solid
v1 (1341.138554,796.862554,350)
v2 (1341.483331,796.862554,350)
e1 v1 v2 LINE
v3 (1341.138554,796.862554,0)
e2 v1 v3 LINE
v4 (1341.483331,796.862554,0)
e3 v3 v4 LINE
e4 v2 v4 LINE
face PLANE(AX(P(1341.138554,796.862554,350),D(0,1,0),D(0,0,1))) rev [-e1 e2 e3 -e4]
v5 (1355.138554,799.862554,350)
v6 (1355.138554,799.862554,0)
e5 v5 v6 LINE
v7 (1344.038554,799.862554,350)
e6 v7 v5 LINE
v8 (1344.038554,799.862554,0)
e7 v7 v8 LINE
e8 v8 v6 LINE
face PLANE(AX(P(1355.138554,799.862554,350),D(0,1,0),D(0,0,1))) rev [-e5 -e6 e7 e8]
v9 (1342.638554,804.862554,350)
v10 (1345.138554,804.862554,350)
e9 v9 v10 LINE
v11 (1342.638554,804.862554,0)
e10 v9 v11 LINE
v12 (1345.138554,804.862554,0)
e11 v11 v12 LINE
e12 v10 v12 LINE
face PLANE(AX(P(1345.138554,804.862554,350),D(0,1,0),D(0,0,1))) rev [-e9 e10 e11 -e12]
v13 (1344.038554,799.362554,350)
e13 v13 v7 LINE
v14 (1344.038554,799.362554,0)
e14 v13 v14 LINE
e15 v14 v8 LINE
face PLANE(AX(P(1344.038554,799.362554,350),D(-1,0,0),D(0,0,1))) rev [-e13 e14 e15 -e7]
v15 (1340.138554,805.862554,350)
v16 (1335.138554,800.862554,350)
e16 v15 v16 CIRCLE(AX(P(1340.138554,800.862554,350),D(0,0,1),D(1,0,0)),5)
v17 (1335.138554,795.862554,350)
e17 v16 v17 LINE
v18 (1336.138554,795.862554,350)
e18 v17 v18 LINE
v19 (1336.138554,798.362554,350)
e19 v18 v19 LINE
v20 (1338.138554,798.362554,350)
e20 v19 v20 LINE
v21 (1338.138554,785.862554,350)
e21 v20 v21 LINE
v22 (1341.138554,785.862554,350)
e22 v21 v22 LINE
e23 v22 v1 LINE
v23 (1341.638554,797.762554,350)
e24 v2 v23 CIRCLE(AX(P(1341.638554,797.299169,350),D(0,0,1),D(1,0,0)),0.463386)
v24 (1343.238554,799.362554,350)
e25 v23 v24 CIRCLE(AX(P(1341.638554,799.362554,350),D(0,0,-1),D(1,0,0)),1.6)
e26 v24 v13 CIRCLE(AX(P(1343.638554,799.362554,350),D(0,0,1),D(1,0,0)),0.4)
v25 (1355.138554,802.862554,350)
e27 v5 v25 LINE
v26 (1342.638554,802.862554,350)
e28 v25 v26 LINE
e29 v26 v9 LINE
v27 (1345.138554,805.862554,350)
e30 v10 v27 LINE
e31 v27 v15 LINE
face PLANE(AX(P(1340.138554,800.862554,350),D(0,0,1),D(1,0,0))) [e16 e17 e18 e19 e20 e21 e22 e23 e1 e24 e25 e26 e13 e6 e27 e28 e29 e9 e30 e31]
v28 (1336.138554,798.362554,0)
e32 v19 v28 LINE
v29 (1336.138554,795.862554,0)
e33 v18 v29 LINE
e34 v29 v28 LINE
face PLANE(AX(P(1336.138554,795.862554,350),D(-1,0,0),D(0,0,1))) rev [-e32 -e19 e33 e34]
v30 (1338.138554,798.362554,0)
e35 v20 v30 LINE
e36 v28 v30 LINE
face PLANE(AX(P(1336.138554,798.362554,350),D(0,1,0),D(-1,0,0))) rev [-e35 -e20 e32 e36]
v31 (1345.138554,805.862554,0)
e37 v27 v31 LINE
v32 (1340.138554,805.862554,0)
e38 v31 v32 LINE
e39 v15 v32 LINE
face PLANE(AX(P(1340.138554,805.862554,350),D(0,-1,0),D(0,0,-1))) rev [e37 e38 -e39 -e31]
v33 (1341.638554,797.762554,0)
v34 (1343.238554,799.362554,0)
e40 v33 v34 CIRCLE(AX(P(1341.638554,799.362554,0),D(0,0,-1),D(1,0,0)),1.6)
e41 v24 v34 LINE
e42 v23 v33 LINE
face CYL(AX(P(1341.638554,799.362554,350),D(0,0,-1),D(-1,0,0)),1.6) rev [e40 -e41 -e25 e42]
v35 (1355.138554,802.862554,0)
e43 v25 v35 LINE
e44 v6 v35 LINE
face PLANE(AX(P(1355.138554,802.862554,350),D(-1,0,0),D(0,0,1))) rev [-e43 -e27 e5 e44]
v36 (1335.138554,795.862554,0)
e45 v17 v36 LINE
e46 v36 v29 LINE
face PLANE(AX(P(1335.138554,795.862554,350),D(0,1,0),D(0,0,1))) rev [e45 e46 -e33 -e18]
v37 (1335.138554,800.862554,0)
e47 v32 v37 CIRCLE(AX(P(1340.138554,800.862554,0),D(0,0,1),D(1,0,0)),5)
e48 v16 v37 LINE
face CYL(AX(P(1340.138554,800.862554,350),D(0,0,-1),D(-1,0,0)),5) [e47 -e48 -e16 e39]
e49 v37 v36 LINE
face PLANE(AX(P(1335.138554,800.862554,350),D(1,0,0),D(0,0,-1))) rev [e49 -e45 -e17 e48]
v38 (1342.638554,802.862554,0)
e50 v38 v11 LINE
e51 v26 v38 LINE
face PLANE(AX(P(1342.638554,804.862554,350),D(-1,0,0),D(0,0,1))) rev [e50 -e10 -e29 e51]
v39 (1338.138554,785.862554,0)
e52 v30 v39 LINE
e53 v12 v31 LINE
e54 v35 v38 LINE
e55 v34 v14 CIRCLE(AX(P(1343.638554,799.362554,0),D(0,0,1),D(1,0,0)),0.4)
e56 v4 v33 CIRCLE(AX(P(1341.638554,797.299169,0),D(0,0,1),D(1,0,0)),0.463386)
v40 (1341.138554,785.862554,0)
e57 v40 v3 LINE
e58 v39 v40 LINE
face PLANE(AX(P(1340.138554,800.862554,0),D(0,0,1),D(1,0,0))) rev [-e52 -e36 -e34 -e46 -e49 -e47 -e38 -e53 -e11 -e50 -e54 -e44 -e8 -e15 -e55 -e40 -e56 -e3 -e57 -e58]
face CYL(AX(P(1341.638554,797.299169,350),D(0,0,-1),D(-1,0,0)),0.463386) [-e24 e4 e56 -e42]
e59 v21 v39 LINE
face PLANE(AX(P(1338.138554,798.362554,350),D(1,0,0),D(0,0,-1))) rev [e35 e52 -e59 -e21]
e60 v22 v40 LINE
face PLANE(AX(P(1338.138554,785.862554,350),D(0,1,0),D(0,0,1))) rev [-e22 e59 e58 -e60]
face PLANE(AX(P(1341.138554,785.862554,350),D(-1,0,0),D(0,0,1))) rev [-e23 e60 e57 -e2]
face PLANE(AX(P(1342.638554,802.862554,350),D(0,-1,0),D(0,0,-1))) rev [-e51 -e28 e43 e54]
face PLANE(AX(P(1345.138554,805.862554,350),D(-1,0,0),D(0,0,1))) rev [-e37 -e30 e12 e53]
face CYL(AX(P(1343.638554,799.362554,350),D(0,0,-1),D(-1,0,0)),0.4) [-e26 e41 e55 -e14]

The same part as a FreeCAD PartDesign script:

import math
import FreeCAD as App
import Part
import Sketcher

V = App.Vector

doc = App.newDocument("Part")
params = doc.addObject("Spreadsheet::Sheet", "Params")
for row, (alias, value) in enumerate([
    ("sketch1_radius", "5 mm"),
    ("sketch1_radius2", "1.6 mm"),
    ("sketch1_radius3", "0.4 mm"),
    ("sketch1_width", "5 mm"),
    ("sketch1_width2", "1 mm"),
    ("pad1_length", "350 mm"),
], start=1):
    params.set(f"A{row}", alias)
    params.set(f"B{row}", "=" + value)
    params.setAlias(f"B{row}", alias)

body = doc.addObject("PartDesign::Body", "Body")

sketch1 = body.newObject("Sketcher::SketchObject", "Sketch")
sketch1.AttachmentSupport = (doc.getObject("XY_Plane"), [""])
sketch1.MapMode = "FlatFace"
sketch1.addGeometry(Part.LineSegment(V(1345.14, 805.86, 0), V(1340.14, 805.86, 0)), False)
sketch1.addGeometry(Part.ArcOfCircle(Part.Circle(V(1340.14, 800.86, 0), V(0, 0, 1), 5), math.radians(90), math.radians(180)), False)
sketch1.addGeometry(Part.LineSegment(V(1335.14, 800.86, 0), V(1335.14, 795.86, 0)), False)
sketch1.addGeometry(Part.LineSegment(V(1335.14, 795.86, 0), V(1336.14, 795.86, 0)), False)
sketch1.addGeometry(Part.LineSegment(V(1336.14, 795.86, 0), V(1336.14, 798.36, 0)), False)
sketch1.addGeometry(Part.LineSegment(V(1336.14, 798.36, 0), V(1338.14, 798.36, 0)), False)
sketch1.addGeometry(Part.LineSegment(V(1338.14, 798.36, 0), V(1338.14, 785.86, 0)), False)
sketch1.addGeometry(Part.LineSegment(V(1338.14, 785.86, 0), V(1341.14, 785.86, 0)), False)
sketch1.addGeometry(Part.LineSegment(V(1341.14, 785.86, 0), V(1341.14, 796.86, 0)), False)
sketch1.addGeometry(Part.LineSegment(V(1341.14, 796.86, 0), V(1341.48, 796.86, 0)), False)
sketch1.addGeometry(Part.ArcOfCircle(Part.Circle(V(1341.64, 797.3, 0), V(0, 0, 1), 0.46), math.radians(-110), math.radians(90)), False)
sketch1.addGeometry(Part.ArcOfCircle(Part.Circle(V(1341.64, 799.36, 0), V(0, 0, 1), 1.6), math.radians(0), math.radians(270)), False)
sketch1.addGeometry(Part.ArcOfCircle(Part.Circle(V(1343.64, 799.36, 0), V(0, 0, 1), 0.4), math.radians(180), math.radians(360)), False)
sketch1.addGeometry(Part.LineSegment(V(1344.04, 799.36, 0), V(1344.04, 799.86, 0)), False)
sketch1.addGeometry(Part.LineSegment(V(1344.04, 799.86, 0), V(1355.14, 799.86, 0)), False)
sketch1.addGeometry(Part.LineSegment(V(1355.14, 799.86, 0), V(1355.14, 802.86, 0)), False)
sketch1.addGeometry(Part.LineSegment(V(1355.14, 802.86, 0), V(1342.64, 802.86, 0)), False)
sketch1.addGeometry(Part.LineSegment(V(1342.64, 802.86, 0), V(1342.64, 804.86, 0)), False)
sketch1.addGeometry(Part.LineSegment(V(1342.64, 804.86, 0), V(1345.14, 804.86, 0)), False)
sketch1.addGeometry(Part.LineSegment(V(1345.14, 804.86, 0), V(1345.14, 805.86, 0)), False)
sketch1.addConstraint(Sketcher.Constraint("Tangent", 0, 2, 1, 1))
sketch1.addConstraint(Sketcher.Constraint("Tangent", 1, 2, 2, 1))
sketch1.addConstraint(Sketcher.Constraint("Coincident", 2, 2, 3, 1))
sketch1.addConstraint(Sketcher.Constraint("Coincident", 3, 2, 4, 1))
sketch1.addConstraint(Sketcher.Constraint("Coincident", 4, 2, 5, 1))
sketch1.addConstraint(Sketcher.Constraint("Coincident", 5, 2, 6, 1))
sketch1.addConstraint(Sketcher.Constraint("Coincident", 6, 2, 7, 1))
sketch1.addConstraint(Sketcher.Constraint("Coincident", 7, 2, 8, 1))
sketch1.addConstraint(Sketcher.Constraint("Coincident", 8, 2, 9, 1))
sketch1.addConstraint(Sketcher.Constraint("Coincident", 9, 2, 10, 1))
sketch1.addConstraint(Sketcher.Constraint("Tangent", 10, 2, 11, 2))
sketch1.addConstraint(Sketcher.Constraint("Tangent", 11, 1, 12, 1))
sketch1.addConstraint(Sketcher.Constraint("Tangent", 12, 2, 13, 1))
sketch1.addConstraint(Sketcher.Constraint("Coincident", 13, 2, 14, 1))
sketch1.addConstraint(Sketcher.Constraint("Coincident", 14, 2, 15, 1))
sketch1.addConstraint(Sketcher.Constraint("Coincident", 15, 2, 16, 1))
sketch1.addConstraint(Sketcher.Constraint("Coincident", 16, 2, 17, 1))
sketch1.addConstraint(Sketcher.Constraint("Coincident", 17, 2, 18, 1))
sketch1.addConstraint(Sketcher.Constraint("Coincident", 18, 2, 19, 1))
sketch1.addConstraint(Sketcher.Constraint("Coincident", 19, 2, 0, 1))
sketch1.addConstraint(Sketcher.Constraint("Horizontal", 0))
sketch1.addConstraint(Sketcher.Constraint("Vertical", 2))
sketch1.addConstraint(Sketcher.Constraint("Horizontal", 3))
sketch1.addConstraint(Sketcher.Constraint("Vertical", 4))
sketch1.addConstraint(Sketcher.Constraint("Horizontal", 5))
sketch1.addConstraint(Sketcher.Constraint("Vertical", 6))
sketch1.addConstraint(Sketcher.Constraint("Horizontal", 7))
sketch1.addConstraint(Sketcher.Constraint("Vertical", 8))
sketch1.addConstraint(Sketcher.Constraint("Horizontal", 9))
sketch1.addConstraint(Sketcher.Constraint("Vertical", 13))
sketch1.addConstraint(Sketcher.Constraint("Horizontal", 14))
sketch1.addConstraint(Sketcher.Constraint("Vertical", 15))
sketch1.addConstraint(Sketcher.Constraint("Horizontal", 16))
sketch1.addConstraint(Sketcher.Constraint("Vertical", 17))
sketch1.addConstraint(Sketcher.Constraint("Horizontal", 18))
sketch1.addConstraint(Sketcher.Constraint("Vertical", 19))
sketch1.addConstraint(Sketcher.Constraint("Horizontal", 11, 3, 12, 3))
sketch1.addConstraint(Sketcher.Constraint("Vertical", 10, 3, 11, 3))
sketch1.addConstraint(Sketcher.Constraint("Equal", 0, 2))
sketch1.addConstraint(Sketcher.Constraint("Equal", 18, 4))
sketch1.addConstraint(Sketcher.Constraint("Equal", 16, 6))
sketch1.addConstraint(Sketcher.Constraint("Equal", 7, 15))
sketch1.addConstraint(Sketcher.Constraint("Equal", 5, 17))
sketch1.addConstraint(Sketcher.Constraint("Equal", 3, 19))
sketch1.addConstraint(Sketcher.Constraint("Radius", 1, 5.0))
sketch1.addConstraint(Sketcher.Constraint("Radius", 11, 1.6))
sketch1.addConstraint(Sketcher.Constraint("Radius", 12, 0.4))
sketch1.addConstraint(Sketcher.Constraint("DistanceX", 0, 2, 0, 1, 5.0))
sketch1.addConstraint(Sketcher.Constraint("DistanceX", 3, 1, 3, 2, 1.0))
sketch1.addConstraint(Sketcher.Constraint("DistanceX", 5, 1, 5, 2, 2.0))
sketch1.addConstraint(Sketcher.Constraint("DistanceX", 7, 1, 7, 2, 3.0))
sketch1.addConstraint(Sketcher.Constraint("DistanceY", 8, 1, 8, 2, 11.0))
sketch1.addConstraint(Sketcher.Constraint("DistanceX", 14, 1, 14, 2, 11.1))
sketch1.addConstraint(Sketcher.Constraint("DistanceX", 16, 2, 16, 1, 12.5))
sketch1.addConstraint(Sketcher.Constraint("DistanceX", 18, 1, 18, 2, 2.5))
sketch1.addConstraint(Sketcher.Constraint("DistanceY", 13, 1, 13, 2, 0.5))
sketch1.addConstraint(Sketcher.Constraint("Radius", 10, 0.463386))
sketch1.addConstraint(Sketcher.Constraint("DistanceY", -1, 1, 10, 3, 797.299169))
sketch1.addConstraint(Sketcher.Constraint("DistanceX", -1, 1, 9, 2, 1341.483331))
sketch1.setExpression("Constraints[44]", "Params.sketch1_radius")
sketch1.setExpression("Constraints[45]", "Params.sketch1_radius2")
sketch1.setExpression("Constraints[46]", "Params.sketch1_radius3")
sketch1.setExpression("Constraints[47]", "Params.sketch1_width")
sketch1.setExpression("Constraints[48]", "Params.sketch1_width2")
pad1 = body.newObject("PartDesign::Pad", "Pad")
pad1.Profile = sketch1
pad1.setExpression("Length", "Params.pad1_length")

doc.recompute()
